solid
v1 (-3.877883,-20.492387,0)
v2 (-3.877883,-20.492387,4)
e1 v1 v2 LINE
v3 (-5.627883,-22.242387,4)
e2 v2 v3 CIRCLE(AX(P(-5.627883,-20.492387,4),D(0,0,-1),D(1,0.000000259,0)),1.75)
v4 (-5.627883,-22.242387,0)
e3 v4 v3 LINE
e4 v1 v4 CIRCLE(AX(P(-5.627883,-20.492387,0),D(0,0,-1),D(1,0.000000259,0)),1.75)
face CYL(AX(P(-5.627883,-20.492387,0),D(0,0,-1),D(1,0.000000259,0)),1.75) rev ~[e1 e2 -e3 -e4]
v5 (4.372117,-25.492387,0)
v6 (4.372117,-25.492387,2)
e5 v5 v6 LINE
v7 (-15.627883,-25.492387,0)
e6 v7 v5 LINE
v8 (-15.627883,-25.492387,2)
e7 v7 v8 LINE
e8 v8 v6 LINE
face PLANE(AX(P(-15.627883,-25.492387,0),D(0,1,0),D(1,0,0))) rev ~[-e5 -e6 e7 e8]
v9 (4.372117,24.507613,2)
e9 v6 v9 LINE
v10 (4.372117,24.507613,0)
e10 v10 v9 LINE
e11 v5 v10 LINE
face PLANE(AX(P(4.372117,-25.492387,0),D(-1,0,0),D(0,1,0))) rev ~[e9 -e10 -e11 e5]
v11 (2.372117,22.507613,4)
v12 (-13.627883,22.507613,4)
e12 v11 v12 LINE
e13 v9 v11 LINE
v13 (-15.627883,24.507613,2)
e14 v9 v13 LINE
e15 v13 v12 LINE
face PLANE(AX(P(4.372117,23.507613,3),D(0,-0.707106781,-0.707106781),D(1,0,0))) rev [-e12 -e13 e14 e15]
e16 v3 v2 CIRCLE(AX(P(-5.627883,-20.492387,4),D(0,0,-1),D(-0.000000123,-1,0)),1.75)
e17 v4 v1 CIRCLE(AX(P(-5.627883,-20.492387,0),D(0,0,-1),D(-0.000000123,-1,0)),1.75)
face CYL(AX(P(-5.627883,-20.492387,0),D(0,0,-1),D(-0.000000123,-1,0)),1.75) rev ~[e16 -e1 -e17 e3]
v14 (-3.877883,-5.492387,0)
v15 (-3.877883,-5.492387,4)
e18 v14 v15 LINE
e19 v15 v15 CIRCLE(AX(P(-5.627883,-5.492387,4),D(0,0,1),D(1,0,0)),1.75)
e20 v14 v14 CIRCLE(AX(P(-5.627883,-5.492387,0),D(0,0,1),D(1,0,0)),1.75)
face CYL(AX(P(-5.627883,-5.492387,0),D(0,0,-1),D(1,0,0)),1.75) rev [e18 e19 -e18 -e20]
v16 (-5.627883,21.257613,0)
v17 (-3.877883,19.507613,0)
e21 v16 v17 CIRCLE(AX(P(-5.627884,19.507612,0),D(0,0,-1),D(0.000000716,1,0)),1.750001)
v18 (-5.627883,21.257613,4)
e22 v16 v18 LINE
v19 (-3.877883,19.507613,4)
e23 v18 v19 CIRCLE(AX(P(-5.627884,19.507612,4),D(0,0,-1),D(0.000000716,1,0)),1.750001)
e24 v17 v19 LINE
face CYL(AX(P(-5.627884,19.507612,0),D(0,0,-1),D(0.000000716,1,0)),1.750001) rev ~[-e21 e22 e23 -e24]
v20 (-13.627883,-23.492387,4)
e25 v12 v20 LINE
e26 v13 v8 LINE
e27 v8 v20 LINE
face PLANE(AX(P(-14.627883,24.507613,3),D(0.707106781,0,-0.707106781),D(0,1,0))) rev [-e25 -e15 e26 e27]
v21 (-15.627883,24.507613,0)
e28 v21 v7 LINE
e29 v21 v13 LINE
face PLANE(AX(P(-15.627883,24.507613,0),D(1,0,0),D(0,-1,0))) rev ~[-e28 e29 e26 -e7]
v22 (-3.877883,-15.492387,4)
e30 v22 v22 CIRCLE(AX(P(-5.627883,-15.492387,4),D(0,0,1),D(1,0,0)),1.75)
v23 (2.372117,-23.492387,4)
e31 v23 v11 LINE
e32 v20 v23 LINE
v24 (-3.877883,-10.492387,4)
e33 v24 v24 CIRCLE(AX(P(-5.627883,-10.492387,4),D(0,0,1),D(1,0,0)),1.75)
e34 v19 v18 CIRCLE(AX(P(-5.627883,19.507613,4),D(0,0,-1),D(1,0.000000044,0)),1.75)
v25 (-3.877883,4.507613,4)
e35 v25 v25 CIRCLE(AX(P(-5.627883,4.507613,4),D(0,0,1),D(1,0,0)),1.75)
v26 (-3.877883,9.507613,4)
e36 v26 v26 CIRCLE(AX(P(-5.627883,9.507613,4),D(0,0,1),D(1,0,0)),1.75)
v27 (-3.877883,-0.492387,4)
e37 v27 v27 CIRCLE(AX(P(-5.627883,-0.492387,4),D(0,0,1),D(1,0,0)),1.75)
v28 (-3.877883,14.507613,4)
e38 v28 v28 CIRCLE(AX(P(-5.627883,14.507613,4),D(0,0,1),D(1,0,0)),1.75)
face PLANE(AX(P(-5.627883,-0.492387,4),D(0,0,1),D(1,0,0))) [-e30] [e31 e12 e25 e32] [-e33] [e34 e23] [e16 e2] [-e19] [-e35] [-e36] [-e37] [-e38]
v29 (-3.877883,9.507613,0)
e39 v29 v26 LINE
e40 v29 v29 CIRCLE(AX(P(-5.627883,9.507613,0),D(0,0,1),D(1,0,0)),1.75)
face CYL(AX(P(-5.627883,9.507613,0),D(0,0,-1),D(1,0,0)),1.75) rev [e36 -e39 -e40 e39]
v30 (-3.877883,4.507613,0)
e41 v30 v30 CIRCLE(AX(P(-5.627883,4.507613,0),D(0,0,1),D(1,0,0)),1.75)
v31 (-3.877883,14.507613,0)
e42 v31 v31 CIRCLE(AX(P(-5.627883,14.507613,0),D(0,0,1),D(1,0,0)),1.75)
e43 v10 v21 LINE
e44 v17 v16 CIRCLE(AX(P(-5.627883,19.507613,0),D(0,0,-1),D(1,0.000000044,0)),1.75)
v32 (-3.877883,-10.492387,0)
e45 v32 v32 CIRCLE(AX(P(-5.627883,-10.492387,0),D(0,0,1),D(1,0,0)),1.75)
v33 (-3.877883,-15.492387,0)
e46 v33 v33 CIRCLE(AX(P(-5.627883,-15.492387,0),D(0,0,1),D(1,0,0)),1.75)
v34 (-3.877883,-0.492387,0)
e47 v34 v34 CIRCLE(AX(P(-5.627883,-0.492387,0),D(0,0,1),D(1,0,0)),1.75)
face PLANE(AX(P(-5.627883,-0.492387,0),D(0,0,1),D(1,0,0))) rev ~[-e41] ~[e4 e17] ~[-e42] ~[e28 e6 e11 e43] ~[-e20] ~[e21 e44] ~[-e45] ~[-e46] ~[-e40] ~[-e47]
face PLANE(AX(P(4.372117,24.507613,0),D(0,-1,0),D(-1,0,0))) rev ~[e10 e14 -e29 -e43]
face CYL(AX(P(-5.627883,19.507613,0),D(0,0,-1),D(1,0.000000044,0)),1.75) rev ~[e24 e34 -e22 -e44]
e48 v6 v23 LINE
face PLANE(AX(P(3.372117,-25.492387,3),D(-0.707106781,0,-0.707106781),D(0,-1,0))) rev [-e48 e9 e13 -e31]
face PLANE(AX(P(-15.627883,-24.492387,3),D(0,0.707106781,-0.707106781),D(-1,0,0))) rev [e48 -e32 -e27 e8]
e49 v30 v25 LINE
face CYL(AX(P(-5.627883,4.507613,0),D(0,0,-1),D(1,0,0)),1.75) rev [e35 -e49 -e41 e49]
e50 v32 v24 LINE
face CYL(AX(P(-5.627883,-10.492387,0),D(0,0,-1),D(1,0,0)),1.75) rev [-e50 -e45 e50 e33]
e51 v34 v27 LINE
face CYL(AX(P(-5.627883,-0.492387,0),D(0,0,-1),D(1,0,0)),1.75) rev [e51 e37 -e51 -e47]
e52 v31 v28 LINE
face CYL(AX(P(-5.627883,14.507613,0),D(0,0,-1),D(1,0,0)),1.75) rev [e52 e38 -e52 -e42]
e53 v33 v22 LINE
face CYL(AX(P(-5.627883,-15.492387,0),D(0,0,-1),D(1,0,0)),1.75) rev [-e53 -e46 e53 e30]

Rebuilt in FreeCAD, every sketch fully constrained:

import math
import FreeCAD as App
import Part
import Sketcher


def edges_at(feature, points):
    """Names of the edges that pass closest to the given points."""
    edges = feature.Shape.Edges
    near = lambda p: min(range(len(edges)), key=lambda i: edges[i].distToShape(Part.Vertex(*p))[0])
    return sorted({f"Edge{near(p) + 1}" for p in points})

doc = App.newDocument("Part")
body = doc.addObject("PartDesign::Body", "Body")

# Sketch on XY plane
sketch1 = doc.addObject("Sketcher::SketchObject", "Sketch")
body.addObject(sketch1)
sketch1.AttachmentSupport = (doc.XY_Plane, [""])
sketch1.MapMode = "FlatFace"
sketch1.addGeometry(Part.LineSegment(App.Vector(-15.6, 24.5, 0), App.Vector(-15.6, -25.5, 0)), False)
sketch1.addGeometry(Part.LineSegment(App.Vector(-15.6, -25.5, 0), App.Vector(4.4, -25.5, 0)), False)
sketch1.addGeometry(Part.LineSegment(App.Vector(4.4, -25.5, 0), App.Vector(4.4, 24.5, 0)), False)
sketch1.addGeometry(Part.LineSegment(App.Vector(4.4, 24.5, 0), App.Vector(-15.6, 24.5, 0)), False)
sketch1.addGeometry(Part.ArcOfCircle(Part.Circle(App.Vector(-5.6, -20.5, 0), App.Vector(0, 0, 1), 1.7), math.radians(0), math.radians(270)), False)
sketch1.addGeometry(Part.ArcOfCircle(Part.Circle(App.Vector(-5.6, -20.5, 0), App.Vector(0, 0, 1), 1.7), math.radians(-90), math.radians(0)), False)
sketch1.addGeometry(Part.Circle(App.Vector(-5.6, -15.5, 0), App.Vector(0, 0, 1), 1.8), False)
sketch1.addGeometry(Part.Circle(App.Vector(-5.6, -10.5, 0), App.Vector(0, 0, 1), 1.8), False)
sketch1.addGeometry(Part.Circle(App.Vector(-5.6, -5.5, 0), App.Vector(0, 0, 1), 1.8), False)
sketch1.addGeometry(Part.ArcOfCircle(Part.Circle(App.Vector(-5.6, 19.5, 0), App.Vector(0, 0, 1), 1.8), math.radians(0), math.radians(90)), False)
sketch1.addGeometry(Part.ArcOfCircle(Part.Circle(App.Vector(-5.6, 19.5, 0), App.Vector(0, 0, 1), 1.8), math.radians(90), math.radians(360)), False)
sketch1.addGeometry(Part.Circle(App.Vector(-5.6, -0.5, 0), App.Vector(0, 0, 1), 1.8), False)
sketch1.addGeometry(Part.Circle(App.Vector(-5.6, 4.5, 0), App.Vector(0, 0, 1), 1.8), False)
sketch1.addGeometry(Part.Circle(App.Vector(-5.6, 9.5, 0), App.Vector(0, 0, 1), 1.8), False)
sketch1.addGeometry(Part.Circle(App.Vector(-5.6, 14.5, 0), App.Vector(0, 0, 1), 1.8), False)
sketch1.addConstraint(Sketcher.Constraint("Coincident", 0, 2, 1, 1))
sketch1.addConstraint(Sketcher.Constraint("Coincident", 1, 2, 2, 1))
sketch1.addConstraint(Sketcher.Constraint("Coincident", 2, 2, 3, 1))
sketch1.addConstraint(Sketcher.Constraint("Coincident", 3, 2, 0, 1))
sketch1.addConstraint(Sketcher.Constraint("Tangent", 4, 1, 5, 2))
sketch1.addConstraint(Sketcher.Constraint("Coincident", 5, 1, 4, 2))
sketch1.addConstraint(Sketcher.Constraint("Tangent", 9, 1, 10, 2))
sketch1.addConstraint(Sketcher.Constraint("Coincident", 10, 1, 9, 2))
sketch1.addConstraint(Sketcher.Constraint("Vertical", 0))
sketch1.addConstraint(Sketcher.Constraint("Horizontal", 1))
sketch1.addConstraint(Sketcher.Constraint("Vertical", 2))
sketch1.addConstraint(Sketcher.Constraint("Horizontal", 3))
sketch1.addConstraint(Sketcher.Constraint("Equal", 5, 6))
sketch1.addConstraint(Sketcher.Constraint("Equal", 6, 7))
sketch1.addConstraint(Sketcher.Constraint("Equal", 7, 8))
sketch1.addConstraint(Sketcher.Constraint("Equal", 8, 9))
sketch1.addConstraint(Sketcher.Constraint("Equal", 10, 11))
sketch1.addConstraint(Sketcher.Constraint("Equal", 11, 12))
sketch1.addConstraint(Sketcher.Constraint("Equal", 12, 13))
sketch1.addConstraint(Sketcher.Constraint("Equal", 13, 14))
sketch1.addConstraint(Sketcher.Constraint("Horizontal", 5, 3, 4, 1))
sketch1.addConstraint(Sketcher.Constraint("Horizontal", 10, 3, 9, 1))
sketch1.addConstraint(Sketcher.Constraint("Vertical", 5, 3, 6, 3))
sketch1.addConstraint(Sketcher.Constraint("Vertical", 6, 3, 7, 3))
sketch1.addConstraint(Sketcher.Constraint("Vertical", 7, 3, 8, 3))
sketch1.addConstraint(Sketcher.Constraint("Vertical", 8, 3, 9, 3))
sketch1.addConstraint(Sketcher.Constraint("Vertical", 10, 3, 11, 3))
sketch1.addConstraint(Sketcher.Constraint("Vertical", 11, 3, 12, 3))
sketch1.addConstraint(Sketcher.Constraint("Vertical", 12, 3, 13, 3))
sketch1.addConstraint(Sketcher.Constraint("Vertical", 13, 3, 14, 3))
sketch1.addConstraint(Sketcher.Constraint("Vertical", 14, 3, 5, 1))
sketch1.addConstraint(Sketcher.Constraint("Vertical", 5, 1, 10, 1))
sketch1.addConstraint(Sketcher.Constraint("Diameter", 6, 3.5))
sketch1.addConstraint(Sketcher.Constraint("DistanceX", 1, 1, 1, 2, 20.0))
sketch1.addConstraint(Sketcher.Constraint("DistanceY", 0, 2, 0, 1, 50.0))
sketch1.addConstraint(Sketcher.Constraint("DistanceY", 4, 3, 6, 3, 5.0))
sketch1.addConstraint(Sketcher.Constraint("DistanceY", 6, 3, 7, 3, 5.0))
sketch1.addConstraint(Sketcher.Constraint("DistanceY", 7, 3, 8, 3, 5.0))
sketch1.addConstraint(Sketcher.Constraint("DistanceY", 8, 3, 9, 3, 24.999999))
sketch1.addConstraint(Sketcher.Constraint("DistanceY", 8, 3, 11, 3, 5.0))
sketch1.addConstraint(Sketcher.Constraint("DistanceY", 11, 3, 12, 3, 5.0))
sketch1.addConstraint(Sketcher.Constraint("DistanceY", 12, 3, 13, 3, 5.0))
sketch1.addConstraint(Sketcher.Constraint("DistanceY", 14, 3, 9, 3, 4.999999))
sketch1.addConstraint(Sketcher.Constraint("DistanceX", 0, 2, 4, 3, 10.0))
sketch1.addConstraint(Sketcher.Constraint("DistanceY", 0, 2, 4, 3, 5.0))
sketch1.addConstraint(Sketcher.Constraint("DistanceY", -1, 1, 9, 3, 19.507612))
sketch1.addConstraint(Sketcher.Constraint("DistanceX", 4, 3, -1, 1, 5.627883))
pad1 = doc.addObject("PartDesign::Pad", "Pad")
body.addObject(pad1)
pad1.Profile = sketch1
pad1.Length = 4
doc.recompute()

chamfer = doc.addObject("PartDesign::Chamfer", "Chamfer")
body.addObject(chamfer)
chamfer.Base = (pad1, edges_at(pad1, [
    (-15.628, -0.492, 4),
    (-5.628, -25.492, 4),
    (4.372, -0.492, 4),
    (-5.628, 24.508, 4),
]))
chamfer.Size = 2

doc.recompute()
